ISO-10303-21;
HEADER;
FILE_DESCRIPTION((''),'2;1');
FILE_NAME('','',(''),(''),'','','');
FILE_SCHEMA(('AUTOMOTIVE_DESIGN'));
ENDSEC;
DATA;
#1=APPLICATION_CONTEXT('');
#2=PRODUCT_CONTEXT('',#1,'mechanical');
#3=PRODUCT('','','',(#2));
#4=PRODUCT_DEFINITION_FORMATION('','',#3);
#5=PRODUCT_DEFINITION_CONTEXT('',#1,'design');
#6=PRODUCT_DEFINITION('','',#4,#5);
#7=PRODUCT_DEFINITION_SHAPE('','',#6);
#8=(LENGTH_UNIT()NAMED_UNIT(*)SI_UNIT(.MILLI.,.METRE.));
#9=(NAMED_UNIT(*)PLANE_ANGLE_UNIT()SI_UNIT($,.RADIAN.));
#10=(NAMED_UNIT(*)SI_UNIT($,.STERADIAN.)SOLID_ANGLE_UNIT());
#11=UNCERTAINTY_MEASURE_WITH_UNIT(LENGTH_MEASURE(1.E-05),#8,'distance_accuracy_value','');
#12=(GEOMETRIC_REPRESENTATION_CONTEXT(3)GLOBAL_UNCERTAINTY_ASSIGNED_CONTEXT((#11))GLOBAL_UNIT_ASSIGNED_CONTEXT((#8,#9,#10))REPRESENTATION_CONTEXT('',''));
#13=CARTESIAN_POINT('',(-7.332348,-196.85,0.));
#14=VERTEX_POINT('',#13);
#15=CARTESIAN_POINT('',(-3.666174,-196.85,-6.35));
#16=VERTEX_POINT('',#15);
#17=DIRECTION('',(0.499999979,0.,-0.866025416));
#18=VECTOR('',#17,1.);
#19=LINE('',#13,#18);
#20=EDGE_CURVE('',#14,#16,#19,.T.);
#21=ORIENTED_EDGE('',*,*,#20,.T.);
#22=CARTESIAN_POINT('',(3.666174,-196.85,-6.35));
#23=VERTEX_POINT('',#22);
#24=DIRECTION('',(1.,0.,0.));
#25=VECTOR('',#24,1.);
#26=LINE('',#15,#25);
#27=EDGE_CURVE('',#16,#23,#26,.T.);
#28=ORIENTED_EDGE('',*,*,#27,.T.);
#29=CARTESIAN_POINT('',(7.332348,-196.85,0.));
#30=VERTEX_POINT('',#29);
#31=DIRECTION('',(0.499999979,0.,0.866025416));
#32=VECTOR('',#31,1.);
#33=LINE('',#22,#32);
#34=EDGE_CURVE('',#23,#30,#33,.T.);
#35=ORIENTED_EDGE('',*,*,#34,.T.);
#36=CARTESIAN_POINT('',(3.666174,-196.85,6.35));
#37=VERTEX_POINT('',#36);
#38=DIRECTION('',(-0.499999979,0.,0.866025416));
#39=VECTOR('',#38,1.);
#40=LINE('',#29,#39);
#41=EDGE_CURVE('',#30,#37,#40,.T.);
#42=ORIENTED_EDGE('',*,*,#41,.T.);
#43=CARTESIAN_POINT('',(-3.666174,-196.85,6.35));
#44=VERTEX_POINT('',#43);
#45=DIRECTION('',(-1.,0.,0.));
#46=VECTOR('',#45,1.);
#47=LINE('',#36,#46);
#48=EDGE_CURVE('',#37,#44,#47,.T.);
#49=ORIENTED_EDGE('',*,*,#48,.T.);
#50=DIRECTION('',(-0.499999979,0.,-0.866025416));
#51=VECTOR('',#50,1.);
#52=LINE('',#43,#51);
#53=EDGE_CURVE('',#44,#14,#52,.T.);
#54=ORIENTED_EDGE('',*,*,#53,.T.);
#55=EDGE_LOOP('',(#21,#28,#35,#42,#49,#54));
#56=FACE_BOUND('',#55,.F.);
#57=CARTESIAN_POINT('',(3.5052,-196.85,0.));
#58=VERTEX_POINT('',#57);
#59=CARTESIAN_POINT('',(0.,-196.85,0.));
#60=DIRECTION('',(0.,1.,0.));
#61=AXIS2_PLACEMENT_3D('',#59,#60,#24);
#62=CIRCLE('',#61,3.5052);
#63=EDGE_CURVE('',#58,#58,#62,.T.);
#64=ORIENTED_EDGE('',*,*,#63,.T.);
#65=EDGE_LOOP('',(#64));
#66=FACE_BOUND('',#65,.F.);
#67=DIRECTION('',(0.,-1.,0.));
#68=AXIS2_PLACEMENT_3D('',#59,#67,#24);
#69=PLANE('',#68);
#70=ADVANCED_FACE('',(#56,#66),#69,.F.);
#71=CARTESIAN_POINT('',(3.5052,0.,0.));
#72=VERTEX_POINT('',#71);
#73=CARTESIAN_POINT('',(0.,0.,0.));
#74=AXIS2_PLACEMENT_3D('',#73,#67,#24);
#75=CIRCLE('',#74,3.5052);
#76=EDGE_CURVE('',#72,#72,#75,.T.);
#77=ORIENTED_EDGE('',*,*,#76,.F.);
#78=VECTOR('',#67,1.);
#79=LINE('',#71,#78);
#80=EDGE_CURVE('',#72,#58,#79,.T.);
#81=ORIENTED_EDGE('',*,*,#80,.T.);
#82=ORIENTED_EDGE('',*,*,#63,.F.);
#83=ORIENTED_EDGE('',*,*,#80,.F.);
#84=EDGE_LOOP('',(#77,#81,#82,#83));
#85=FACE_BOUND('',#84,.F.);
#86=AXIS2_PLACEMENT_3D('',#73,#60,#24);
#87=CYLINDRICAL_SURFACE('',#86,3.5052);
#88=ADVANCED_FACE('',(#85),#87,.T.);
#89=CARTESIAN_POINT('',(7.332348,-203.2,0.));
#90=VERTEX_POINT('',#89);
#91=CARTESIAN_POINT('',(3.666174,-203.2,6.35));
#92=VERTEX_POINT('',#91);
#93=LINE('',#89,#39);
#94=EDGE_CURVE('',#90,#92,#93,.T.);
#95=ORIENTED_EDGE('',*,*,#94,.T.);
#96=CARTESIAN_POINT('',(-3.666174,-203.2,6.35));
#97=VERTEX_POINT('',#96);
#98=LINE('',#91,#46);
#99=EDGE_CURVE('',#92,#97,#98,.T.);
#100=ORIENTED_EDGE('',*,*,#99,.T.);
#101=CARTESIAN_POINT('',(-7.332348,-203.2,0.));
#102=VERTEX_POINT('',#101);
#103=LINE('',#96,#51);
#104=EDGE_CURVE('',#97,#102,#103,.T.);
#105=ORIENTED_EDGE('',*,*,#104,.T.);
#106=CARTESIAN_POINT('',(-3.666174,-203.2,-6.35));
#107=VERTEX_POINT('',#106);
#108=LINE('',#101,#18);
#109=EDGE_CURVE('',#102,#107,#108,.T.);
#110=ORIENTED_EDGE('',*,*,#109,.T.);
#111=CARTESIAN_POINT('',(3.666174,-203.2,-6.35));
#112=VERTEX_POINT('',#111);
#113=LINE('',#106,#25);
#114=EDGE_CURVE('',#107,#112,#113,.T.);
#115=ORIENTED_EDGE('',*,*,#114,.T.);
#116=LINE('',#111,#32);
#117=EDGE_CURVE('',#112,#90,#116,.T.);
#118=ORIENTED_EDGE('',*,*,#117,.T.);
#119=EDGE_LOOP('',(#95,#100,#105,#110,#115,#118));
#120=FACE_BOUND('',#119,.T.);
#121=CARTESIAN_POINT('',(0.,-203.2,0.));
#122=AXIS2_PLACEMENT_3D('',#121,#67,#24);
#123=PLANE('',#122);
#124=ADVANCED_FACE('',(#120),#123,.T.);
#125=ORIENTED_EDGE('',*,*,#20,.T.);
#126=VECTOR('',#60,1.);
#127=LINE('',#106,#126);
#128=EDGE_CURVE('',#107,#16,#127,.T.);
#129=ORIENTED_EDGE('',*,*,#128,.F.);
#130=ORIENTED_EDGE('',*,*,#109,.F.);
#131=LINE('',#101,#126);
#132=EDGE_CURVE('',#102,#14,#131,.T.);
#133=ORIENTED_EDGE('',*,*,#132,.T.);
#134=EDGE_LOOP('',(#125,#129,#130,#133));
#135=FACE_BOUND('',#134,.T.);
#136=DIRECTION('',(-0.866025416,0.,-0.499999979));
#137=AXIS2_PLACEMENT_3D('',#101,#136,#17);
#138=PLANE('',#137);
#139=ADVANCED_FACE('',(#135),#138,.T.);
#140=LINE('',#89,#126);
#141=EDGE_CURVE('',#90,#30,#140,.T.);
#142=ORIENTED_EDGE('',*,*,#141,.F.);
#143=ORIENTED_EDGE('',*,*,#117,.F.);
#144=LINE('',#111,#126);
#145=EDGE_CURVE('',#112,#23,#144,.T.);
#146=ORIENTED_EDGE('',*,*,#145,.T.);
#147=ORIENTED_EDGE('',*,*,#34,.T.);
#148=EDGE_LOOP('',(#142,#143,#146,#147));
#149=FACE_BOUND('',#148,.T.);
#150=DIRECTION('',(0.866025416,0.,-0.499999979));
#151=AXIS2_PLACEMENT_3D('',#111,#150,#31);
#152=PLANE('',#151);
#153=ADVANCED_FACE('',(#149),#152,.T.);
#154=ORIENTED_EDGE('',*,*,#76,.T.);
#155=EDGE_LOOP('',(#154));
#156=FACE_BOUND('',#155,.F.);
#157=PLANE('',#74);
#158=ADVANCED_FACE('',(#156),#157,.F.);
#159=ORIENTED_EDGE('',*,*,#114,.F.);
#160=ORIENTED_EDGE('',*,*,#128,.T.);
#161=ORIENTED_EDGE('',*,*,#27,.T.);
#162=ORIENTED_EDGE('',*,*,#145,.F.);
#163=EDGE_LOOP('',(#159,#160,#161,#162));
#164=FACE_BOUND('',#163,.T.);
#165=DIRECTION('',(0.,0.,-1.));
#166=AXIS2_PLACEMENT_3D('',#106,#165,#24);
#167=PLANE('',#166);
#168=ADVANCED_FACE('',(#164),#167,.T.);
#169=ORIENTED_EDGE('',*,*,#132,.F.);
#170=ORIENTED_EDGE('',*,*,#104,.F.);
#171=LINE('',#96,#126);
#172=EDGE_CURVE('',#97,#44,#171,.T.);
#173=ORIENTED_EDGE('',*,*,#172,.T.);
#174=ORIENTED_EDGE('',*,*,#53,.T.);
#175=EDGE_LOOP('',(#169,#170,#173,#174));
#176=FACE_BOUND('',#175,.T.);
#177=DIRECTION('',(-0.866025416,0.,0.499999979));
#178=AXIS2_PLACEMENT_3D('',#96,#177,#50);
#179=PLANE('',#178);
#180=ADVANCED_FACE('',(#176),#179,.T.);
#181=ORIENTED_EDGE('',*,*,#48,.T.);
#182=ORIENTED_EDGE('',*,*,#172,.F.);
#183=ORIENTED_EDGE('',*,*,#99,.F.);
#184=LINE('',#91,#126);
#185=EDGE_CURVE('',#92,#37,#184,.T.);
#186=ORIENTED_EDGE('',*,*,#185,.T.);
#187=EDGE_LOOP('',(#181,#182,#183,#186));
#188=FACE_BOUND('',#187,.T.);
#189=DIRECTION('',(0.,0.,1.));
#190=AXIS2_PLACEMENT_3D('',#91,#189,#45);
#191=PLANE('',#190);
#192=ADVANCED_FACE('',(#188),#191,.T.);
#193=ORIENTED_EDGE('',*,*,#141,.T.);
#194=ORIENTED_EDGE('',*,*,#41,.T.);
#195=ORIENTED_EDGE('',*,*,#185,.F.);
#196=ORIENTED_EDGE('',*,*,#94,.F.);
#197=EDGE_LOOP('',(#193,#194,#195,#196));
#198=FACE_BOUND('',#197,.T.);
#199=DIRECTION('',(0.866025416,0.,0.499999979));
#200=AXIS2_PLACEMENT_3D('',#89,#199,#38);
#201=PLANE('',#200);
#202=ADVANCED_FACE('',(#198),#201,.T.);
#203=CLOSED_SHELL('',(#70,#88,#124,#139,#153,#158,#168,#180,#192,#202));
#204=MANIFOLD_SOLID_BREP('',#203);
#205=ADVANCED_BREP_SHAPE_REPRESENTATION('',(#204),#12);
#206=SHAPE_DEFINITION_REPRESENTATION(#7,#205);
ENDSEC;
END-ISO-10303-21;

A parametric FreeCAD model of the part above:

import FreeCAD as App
import Part
import Sketcher
Q = App.Units.Quantity


def add_polygon(sketch, points):
    """Adds a closed chain of lines whose ends are joined by coincident constraints."""
    first, n = sketch.GeometryCount, len(points)
    for a, b in zip(points, points[1:] + points[:1]):
        sketch.addGeometry(Part.LineSegment(App.Vector(*a, 0), App.Vector(*b, 0)), False)
    for i in range(n):
        sketch.addConstraint(Sketcher.Constraint("Coincident", first + i, 2, first + (i + 1) % n, 1))

doc = App.newDocument("Part")
body = doc.addObject("PartDesign::Body", "Body")

sketch1 = body.newObject("Sketcher::SketchObject", "Sketch")
sketch1.AttachmentSupport = (doc.getObject("XZ_Plane"), [""])
sketch1.MapMode = "FlatFace"
sketch1.addGeometry(Part.Circle(App.Vector(0, 0, 0), App.Vector(0, 0, 1), 3.5), False)
sketch1.addConstraint([
    Sketcher.Constraint("Coincident", 0, 3, -1, 1),
    Sketcher.Constraint("Diameter", 0, Q("0.276 in")),
])
pad1 = body.newObject("PartDesign::Pad", "Pad")
pad1.Profile = sketch1
pad1.Length = Q("8 in")

sketch2 = body.newObject("Sketcher::SketchObject", "Sketch001")
sketch2.AttachmentSupport = (doc.getObject("XZ_Plane"), [""])
sketch2.MapMode = "FlatFace"
sketch2.AttachmentOffset = App.Placement(App.Vector(0, 0, 8 * 25.4), App.Rotation())
add_polygon(sketch2, [(7, 0), (4, 6), (-4, 6), (-7, 0), (-4, -6), (4, -6)])
sketch2.addConstraint([
    Sketcher.Constraint("Horizontal", 1),
    Sketcher.Constraint("Horizontal", 4),
    Sketcher.Constraint("Symmetric", 0, 2, 3, 2, -1, 1),
    Sketcher.Constraint("Symmetric", 2, 2, 5, 2, -1, 1),
    Sketcher.Constraint("PointOnObject", 2, 2, -1),
    Sketcher.Constraint("Parallel", 2, 5),
    Sketcher.Constraint("Vertical", 1, 2, 3, 2),
    Sketcher.Constraint("Angle", 0, Q("119.999999 deg")),
    Sketcher.Constraint("DistanceY", 3, 2, 1, 2, Q("0.5 in")),
    Sketcher.Constraint("DistanceX", 1, 2, 1, 1, Q("7.332348 mm")),
])
pad2 = body.newObject("PartDesign::Pad", "Pad001")
pad2.Profile = sketch2
pad2.Length = Q("0.25 in")
pad2.Reversed = True

doc.recompute()
